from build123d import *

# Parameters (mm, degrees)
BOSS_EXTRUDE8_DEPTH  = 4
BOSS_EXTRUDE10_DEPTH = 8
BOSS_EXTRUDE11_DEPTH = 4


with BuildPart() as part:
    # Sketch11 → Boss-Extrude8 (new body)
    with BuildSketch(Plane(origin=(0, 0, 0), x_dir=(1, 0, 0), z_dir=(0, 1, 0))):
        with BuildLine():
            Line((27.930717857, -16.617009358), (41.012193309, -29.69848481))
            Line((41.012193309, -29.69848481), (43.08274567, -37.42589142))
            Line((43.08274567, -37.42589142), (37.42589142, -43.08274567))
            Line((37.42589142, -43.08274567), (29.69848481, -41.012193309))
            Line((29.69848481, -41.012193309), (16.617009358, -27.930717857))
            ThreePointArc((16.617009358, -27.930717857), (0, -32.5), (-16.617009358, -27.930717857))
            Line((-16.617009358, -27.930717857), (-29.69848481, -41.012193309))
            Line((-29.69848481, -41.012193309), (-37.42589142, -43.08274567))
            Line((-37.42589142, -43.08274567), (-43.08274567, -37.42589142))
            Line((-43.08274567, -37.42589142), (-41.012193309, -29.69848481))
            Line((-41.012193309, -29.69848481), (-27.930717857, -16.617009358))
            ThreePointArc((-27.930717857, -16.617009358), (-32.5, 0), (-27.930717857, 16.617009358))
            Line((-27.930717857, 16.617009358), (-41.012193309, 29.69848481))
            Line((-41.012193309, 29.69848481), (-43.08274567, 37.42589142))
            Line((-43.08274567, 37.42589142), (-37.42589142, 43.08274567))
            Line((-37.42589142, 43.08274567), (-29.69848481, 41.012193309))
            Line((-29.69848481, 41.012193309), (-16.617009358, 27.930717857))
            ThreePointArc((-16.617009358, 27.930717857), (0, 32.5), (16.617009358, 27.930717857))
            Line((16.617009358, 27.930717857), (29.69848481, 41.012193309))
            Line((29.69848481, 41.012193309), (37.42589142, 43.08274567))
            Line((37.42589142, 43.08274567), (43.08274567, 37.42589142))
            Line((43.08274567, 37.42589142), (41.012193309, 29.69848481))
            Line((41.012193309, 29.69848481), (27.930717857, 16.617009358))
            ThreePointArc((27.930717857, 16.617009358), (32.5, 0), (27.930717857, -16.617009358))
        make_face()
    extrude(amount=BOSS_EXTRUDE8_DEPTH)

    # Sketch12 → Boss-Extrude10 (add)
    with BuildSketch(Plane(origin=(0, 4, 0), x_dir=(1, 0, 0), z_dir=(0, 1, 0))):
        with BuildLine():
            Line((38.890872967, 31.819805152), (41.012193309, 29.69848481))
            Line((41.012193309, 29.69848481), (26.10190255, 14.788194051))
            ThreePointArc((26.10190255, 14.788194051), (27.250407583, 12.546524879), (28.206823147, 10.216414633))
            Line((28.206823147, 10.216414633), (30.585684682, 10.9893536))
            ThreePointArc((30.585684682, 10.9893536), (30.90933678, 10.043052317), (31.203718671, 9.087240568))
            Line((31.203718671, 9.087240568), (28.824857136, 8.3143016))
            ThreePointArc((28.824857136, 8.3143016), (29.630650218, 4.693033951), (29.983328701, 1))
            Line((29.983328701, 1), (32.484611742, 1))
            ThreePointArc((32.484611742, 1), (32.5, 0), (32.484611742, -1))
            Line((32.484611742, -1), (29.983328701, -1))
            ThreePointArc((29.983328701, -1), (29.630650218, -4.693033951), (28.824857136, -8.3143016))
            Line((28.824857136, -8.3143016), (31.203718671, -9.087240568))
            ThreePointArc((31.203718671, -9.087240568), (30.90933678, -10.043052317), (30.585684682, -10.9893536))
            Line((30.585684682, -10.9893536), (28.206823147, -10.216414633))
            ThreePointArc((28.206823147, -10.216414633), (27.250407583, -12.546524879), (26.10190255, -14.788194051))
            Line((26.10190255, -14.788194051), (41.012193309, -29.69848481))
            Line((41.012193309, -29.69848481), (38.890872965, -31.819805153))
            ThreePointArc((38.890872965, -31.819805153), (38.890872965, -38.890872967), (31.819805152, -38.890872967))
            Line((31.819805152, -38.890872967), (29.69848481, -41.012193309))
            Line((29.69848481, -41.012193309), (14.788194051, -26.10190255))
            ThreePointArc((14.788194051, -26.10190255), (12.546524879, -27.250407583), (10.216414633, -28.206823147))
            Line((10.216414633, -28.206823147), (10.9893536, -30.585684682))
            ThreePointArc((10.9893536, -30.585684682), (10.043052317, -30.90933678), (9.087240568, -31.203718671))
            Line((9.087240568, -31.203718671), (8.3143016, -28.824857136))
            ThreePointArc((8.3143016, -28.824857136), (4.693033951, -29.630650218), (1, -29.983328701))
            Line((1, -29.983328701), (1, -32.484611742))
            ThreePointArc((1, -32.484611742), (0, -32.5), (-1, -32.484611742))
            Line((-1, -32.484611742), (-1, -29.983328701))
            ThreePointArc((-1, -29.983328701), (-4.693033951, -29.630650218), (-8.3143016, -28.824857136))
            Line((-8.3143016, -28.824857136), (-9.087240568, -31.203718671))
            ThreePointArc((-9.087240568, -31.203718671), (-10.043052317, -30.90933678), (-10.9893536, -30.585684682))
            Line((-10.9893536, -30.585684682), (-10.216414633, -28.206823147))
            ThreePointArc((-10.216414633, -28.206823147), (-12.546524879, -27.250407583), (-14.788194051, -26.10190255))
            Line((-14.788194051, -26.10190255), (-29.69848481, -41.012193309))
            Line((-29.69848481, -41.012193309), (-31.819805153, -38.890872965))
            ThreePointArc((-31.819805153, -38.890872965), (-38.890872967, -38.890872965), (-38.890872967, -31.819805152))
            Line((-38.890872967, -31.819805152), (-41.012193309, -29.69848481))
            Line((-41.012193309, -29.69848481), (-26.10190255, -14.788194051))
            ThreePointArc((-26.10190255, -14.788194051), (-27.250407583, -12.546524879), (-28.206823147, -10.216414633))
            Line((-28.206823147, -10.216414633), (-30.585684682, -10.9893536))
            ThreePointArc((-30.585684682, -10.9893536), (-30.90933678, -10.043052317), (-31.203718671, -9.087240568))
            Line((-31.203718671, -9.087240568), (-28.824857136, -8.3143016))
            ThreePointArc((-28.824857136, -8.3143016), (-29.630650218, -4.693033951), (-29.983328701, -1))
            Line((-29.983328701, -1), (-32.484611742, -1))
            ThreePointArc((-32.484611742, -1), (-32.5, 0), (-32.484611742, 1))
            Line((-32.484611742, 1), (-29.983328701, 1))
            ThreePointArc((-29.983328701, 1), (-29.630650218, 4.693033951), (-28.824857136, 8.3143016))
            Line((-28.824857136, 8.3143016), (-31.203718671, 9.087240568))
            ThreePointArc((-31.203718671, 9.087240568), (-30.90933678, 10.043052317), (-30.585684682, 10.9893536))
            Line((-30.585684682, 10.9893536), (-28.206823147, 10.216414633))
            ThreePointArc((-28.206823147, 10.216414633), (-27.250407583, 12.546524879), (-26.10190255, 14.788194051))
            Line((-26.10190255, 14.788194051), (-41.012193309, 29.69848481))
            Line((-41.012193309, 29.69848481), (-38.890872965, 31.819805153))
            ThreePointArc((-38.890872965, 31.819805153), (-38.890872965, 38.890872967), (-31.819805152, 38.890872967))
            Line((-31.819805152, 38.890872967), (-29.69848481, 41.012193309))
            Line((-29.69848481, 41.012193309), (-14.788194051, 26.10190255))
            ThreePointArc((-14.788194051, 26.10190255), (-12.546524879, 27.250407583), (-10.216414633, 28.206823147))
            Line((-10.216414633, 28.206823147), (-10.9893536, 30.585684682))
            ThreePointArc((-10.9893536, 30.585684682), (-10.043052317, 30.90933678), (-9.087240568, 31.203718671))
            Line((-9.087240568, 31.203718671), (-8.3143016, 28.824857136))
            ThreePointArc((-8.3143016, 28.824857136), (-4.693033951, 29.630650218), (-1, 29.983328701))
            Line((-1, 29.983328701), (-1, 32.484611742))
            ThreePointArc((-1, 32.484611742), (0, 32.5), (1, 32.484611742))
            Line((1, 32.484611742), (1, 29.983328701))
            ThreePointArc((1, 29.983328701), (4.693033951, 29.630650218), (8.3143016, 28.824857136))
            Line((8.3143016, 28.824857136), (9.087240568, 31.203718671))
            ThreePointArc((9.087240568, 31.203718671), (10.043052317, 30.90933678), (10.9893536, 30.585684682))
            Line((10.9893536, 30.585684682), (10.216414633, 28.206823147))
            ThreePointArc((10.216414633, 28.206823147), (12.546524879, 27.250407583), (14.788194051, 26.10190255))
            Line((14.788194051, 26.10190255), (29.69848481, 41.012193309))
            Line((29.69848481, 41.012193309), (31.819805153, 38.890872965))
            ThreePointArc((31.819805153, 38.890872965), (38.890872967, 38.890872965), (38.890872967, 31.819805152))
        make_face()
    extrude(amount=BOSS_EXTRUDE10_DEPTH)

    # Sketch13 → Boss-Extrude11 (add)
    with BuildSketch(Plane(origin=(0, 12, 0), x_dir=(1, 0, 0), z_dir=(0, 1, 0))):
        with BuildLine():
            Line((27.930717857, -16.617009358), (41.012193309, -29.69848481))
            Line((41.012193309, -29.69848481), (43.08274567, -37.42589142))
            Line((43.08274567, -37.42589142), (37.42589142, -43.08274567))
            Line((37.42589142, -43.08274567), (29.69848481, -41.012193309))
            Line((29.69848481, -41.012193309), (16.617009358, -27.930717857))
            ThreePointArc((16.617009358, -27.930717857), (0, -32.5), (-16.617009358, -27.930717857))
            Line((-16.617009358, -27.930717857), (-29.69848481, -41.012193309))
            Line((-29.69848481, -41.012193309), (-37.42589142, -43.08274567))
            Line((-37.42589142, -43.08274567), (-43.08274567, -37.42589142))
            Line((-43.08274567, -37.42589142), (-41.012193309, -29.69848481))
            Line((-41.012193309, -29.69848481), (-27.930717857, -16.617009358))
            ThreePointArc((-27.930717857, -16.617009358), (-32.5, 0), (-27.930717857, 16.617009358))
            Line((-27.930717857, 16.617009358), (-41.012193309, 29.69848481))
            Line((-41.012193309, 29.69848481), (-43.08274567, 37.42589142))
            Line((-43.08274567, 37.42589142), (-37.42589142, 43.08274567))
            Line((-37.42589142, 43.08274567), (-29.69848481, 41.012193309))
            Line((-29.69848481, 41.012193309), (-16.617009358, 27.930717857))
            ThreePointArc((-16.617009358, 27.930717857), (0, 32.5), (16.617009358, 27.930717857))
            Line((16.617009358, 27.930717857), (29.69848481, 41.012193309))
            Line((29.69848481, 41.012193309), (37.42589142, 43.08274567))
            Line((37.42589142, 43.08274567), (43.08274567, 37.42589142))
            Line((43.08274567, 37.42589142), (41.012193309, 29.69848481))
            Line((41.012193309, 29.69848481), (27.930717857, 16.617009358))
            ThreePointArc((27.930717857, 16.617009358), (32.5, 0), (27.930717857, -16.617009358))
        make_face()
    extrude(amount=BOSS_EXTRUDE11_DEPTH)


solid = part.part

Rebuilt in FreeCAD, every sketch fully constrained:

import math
import FreeCAD as App
import Part
import Sketcher
Q = App.Units.Quantity

doc = App.newDocument("Part")
body = doc.addObject("PartDesign::Body", "Body")

# Sketch on XZ plane
sketch1 = doc.addObject("Sketcher::SketchObject", "Sketch")
body.addObject(sketch1)
sketch1.AttachmentSupport = (doc.XZ_Plane, [""])
sketch1.MapMode = "FlatFace"
sketch1.addGeometry(Part.LineSegment(App.Vector(41, 30, 0), App.Vector(28, 17, 0)), False)
sketch1.addGeometry(Part.ArcOfCircle(Part.Circle(App.Vector(0, 0, 0), App.Vector(0, 0, 1), 33), math.radians(-31), math.radians(31)), False)
sketch1.addGeometry(Part.LineSegment(App.Vector(28, -17, 0), App.Vector(41, -30, 0)), False)
sketch1.addGeometry(Part.LineSegment(App.Vector(41, -30, 0), App.Vector(43, -37, 0)), False)
sketch1.addGeometry(Part.LineSegment(App.Vector(43, -37, 0), App.Vector(37, -43, 0)), False)
sketch1.addGeometry(Part.LineSegment(App.Vector(37, -43, 0), App.Vector(30, -41, 0)), False)
sketch1.addGeometry(Part.LineSegment(App.Vector(30, -41, 0), App.Vector(17, -28, 0)), False)
sketch1.addGeometry(Part.ArcOfCircle(Part.Circle(App.Vector(0, 0, 0), App.Vector(0, 0, 1), 33), math.radians(-121), math.radians(-59)), False)
sketch1.addGeometry(Part.LineSegment(App.Vector(-17, -28, 0), App.Vector(-30, -41, 0)), False)
sketch1.addGeometry(Part.LineSegment(App.Vector(-30, -41, 0), App.Vector(-37, -43, 0)), False)
sketch1.addGeometry(Part.LineSegment(App.Vector(-37, -43, 0), App.Vector(-43, -37, 0)), False)
sketch1.addGeometry(Part.LineSegment(App.Vector(-43, -37, 0), App.Vector(-41, -30, 0)), False)
sketch1.addGeometry(Part.LineSegment(App.Vector(-41, -30, 0), App.Vector(-28, -17, 0)), False)
sketch1.addGeometry(Part.ArcOfCircle(Part.Circle(App.Vector(0, 0, 0), App.Vector(0, 0, 1), 33), math.radians(149), math.radians(211)), False)
sketch1.addGeometry(Part.LineSegment(App.Vector(-28, 17, 0), App.Vector(-41, 30, 0)), False)
sketch1.addGeometry(Part.LineSegment(App.Vector(-41, 30, 0), App.Vector(-43, 37, 0)), False)
sketch1.addGeometry(Part.LineSegment(App.Vector(-43, 37, 0), App.Vector(-37, 43, 0)), False)
sketch1.addGeometry(Part.LineSegment(App.Vector(-37, 43, 0), App.Vector(-30, 41, 0)), False)
sketch1.addGeometry(Part.LineSegment(App.Vector(-30, 41, 0), App.Vector(-17, 28, 0)), False)
sketch1.addGeometry(Part.ArcOfCircle(Part.Circle(App.Vector(0, 0, 0), App.Vector(0, 0, 1), 33), math.radians(59), math.radians(121)), False)
sketch1.addGeometry(Part.LineSegment(App.Vector(17, 28, 0), App.Vector(30, 41, 0)), False)
sketch1.addGeometry(Part.LineSegment(App.Vector(30, 41, 0), App.Vector(37, 43, 0)), False)
sketch1.addGeometry(Part.LineSegment(App.Vector(37, 43, 0), App.Vector(43, 37, 0)), False)
sketch1.addGeometry(Part.LineSegment(App.Vector(43, 37, 0), App.Vector(41, 30, 0)), False)
sketch1.addConstraint(Sketcher.Constraint("Coincident", 0, 2, 1, 2))
sketch1.addConstraint(Sketcher.Constraint("Coincident", 1, 1, 2, 1))
sketch1.addConstraint(Sketcher.Constraint("Coincident", 2, 2, 3, 1))
sketch1.addConstraint(Sketcher.Constraint("Coincident", 3, 2, 4, 1))
sketch1.addConstraint(Sketcher.Constraint("Coincident", 4, 2, 5, 1))
sketch1.addConstraint(Sketcher.Constraint("Coincident", 5, 2, 6, 1))
sketch1.addConstraint(Sketcher.Constraint("Coincident", 6, 2, 7, 2))
sketch1.addConstraint(Sketcher.Constraint("Coincident", 7, 1, 8, 1))
sketch1.addConstraint(Sketcher.Constraint("Coincident", 8, 2, 9, 1))
sketch1.addConstraint(Sketcher.Constraint("Coincident", 9, 2, 10, 1))
sketch1.addConstraint(Sketcher.Constraint("Coincident", 10, 2, 11, 1))
sketch1.addConstraint(Sketcher.Constraint("Coincident", 11, 2, 12, 1))
sketch1.addConstraint(Sketcher.Constraint("Coincident", 12, 2, 13, 2))
sketch1.addConstraint(Sketcher.Constraint("Coincident", 13, 1, 14, 1))
sketch1.addConstraint(Sketcher.Constraint("Coincident", 14, 2, 15, 1))
sketch1.addConstraint(Sketcher.Constraint("Coincident", 15, 2, 16, 1))
sketch1.addConstraint(Sketcher.Constraint("Coincident", 16, 2, 17, 1))
sketch1.addConstraint(Sketcher.Constraint("Coincident", 17, 2, 18, 1))
sketch1.addConstraint(Sketcher.Constraint("Coincident", 18, 2, 19, 2))
sketch1.addConstraint(Sketcher.Constraint("Coincident", 19, 1, 20, 1))
sketch1.addConstraint(Sketcher.Constraint("Coincident", 20, 2, 21, 1))
sketch1.addConstraint(Sketcher.Constraint("Coincident", 21, 2, 22, 1))
sketch1.addConstraint(Sketcher.Constraint("Coincident", 22, 2, 23, 1))
sketch1.addConstraint(Sketcher.Constraint("Coincident", 23, 2, 0, 1))
sketch1.addConstraint(Sketcher.Constraint("Coincident", 1, 3, -1, 1))
sketch1.addConstraint(Sketcher.Constraint("Coincident", 7, 3, -1, 1))
sketch1.addConstraint(Sketcher.Constraint("Coincident", 13, 3, -1, 1))
sketch1.addConstraint(Sketcher.Constraint("Coincident", 19, 3, -1, 1))
sketch1.addConstraint(Sketcher.Constraint("Equal", 1, 7))
sketch1.addConstraint(Sketcher.Constraint("Equal", 7, 13))
sketch1.addConstraint(Sketcher.Constraint("Equal", 13, 19))
sketch1.addConstraint(Sketcher.Constraint("Symmetric", 2, 2, 14, 2, -1, 1))
sketch1.addConstraint(Sketcher.Constraint("Symmetric", 3, 2, 15, 2, -1, 1))
sketch1.addConstraint(Sketcher.Constraint("Symmetric", 4, 2, 16, 2, -1, 1))
sketch1.addConstraint(Sketcher.Constraint("Symmetric", 5, 2, 17, 2, -1, 1))
sketch1.addConstraint(Sketcher.Constraint("Symmetric", 8, 2, 20, 2, -1, 1))
sketch1.addConstraint(Sketcher.Constraint("Symmetric", 9, 2, 21, 2, -1, 1))
sketch1.addConstraint(Sketcher.Constraint("Symmetric", 10, 2, 22, 2, -1, 1))
sketch1.addConstraint(Sketcher.Constraint("Symmetric", 11, 2, 23, 2, -1, 1))
sketch1.addConstraint(Sketcher.Constraint("Symmetric", 5, 2, 8, 2, -2))
sketch1.addConstraint(Sketcher.Constraint("Symmetric", 4, 2, 9, 2, -2))
sketch1.addConstraint(Sketcher.Constraint("Symmetric", 3, 2, 10, 2, -2))
sketch1.addConstraint(Sketcher.Constraint("Symmetric", 2, 2, 11, 2, -2))
sketch1.addConstraint(Sketcher.Constraint("Perpendicular", 0, 2))
sketch1.addConstraint(Sketcher.Constraint("Perpendicular", 2, 4))
sketch1.addConstraint(Sketcher.Constraint("Perpendicular", 4, 6))
sketch1.addConstraint(Sketcher.Constraint("Perpendicular", 6, 8))
sketch1.addConstraint(Sketcher.Constraint("Perpendicular", 3, 9))
sketch1.addConstraint(Sketcher.Constraint("Perpendicular", 8, 10))
sketch1.addConstraint(Sketcher.Constraint("Perpendicular", 10, 12))
sketch1.addConstraint(Sketcher.Constraint("Perpendicular", 12, 14))
sketch1.addConstraint(Sketcher.Constraint("Perpendicular", 16, 18))
sketch1.addConstraint(Sketcher.Constraint("Perpendicular", 18, 20))
sketch1.addConstraint(Sketcher.Constraint("Equal", 3, 4))
sketch1.addConstraint(Sketcher.Constraint("Equal", 4, 5))
sketch1.addConstraint(Sketcher.Constraint("Equal", 2, 6))
sketch1.addConstraint(Sketcher.Constraint("Radius", 1, 32.5))
sketch1.addConstraint(Sketcher.Constraint("Angle", 3, Q("-75 deg")))
sketch1.addConstraint(Sketcher.Constraint("Distance", 3, 8.0))
sketch1.addConstraint(Sketcher.Constraint("Distance", 0, 18.5))
pad1 = doc.addObject("PartDesign::Pad", "Pad")
body.addObject(pad1)
pad1.Profile = sketch1
pad1.Length = 4
pad1.Reversed = True

# Sketch on XZ plane
sketch2 = doc.addObject("Sketcher::SketchObject", "Sketch001")
body.addObject(sketch2)
sketch2.AttachmentSupport = (doc.XZ_Plane, [""])
sketch2.MapMode = "FlatFace"
sketch2.AttachmentOffset = App.Placement(App.Vector(0, 0, -4), App.Rotation())
sketch2.addGeometry(Part.LineSegment(App.Vector(41, -29.7, 0), App.Vector(38.9, -31.8, 0)), False)
sketch2.addGeometry(Part.ArcOfCircle(Part.Circle(App.Vector(35.4, -35.4, 0), App.Vector(0, 0, 1), 5), math.radians(-135), math.radians(45)), False)
sketch2.addGeometry(Part.LineSegment(App.Vector(31.8, -38.9, 0), App.Vector(29.7, -41, 0)), False)
sketch2.addGeometry(Part.LineSegment(App.Vector(29.7, -41, 0), App.Vector(14.8, -26.1, 0)), False)
sketch2.addGeometry(Part.ArcOfCircle(Part.Circle(App.Vector(0, 0, 0), App.Vector(0, 0, 1), 30), math.radians(-70.09), math.radians(-60.47)), False)
sketch2.addGeometry(Part.LineSegment(App.Vector(10.2, -28.2, 0), App.Vector(11, -30.6, 0)), False)
sketch2.addGeometry(Part.ArcOfCircle(Part.Circle(App.Vector(0, 0, 0), App.Vector(0, 0, 1), 32.5), math.radians(-73.76), math.radians(-70.24)), False)
sketch2.addGeometry(Part.LineSegment(App.Vector(9.1, -31.2, 0), App.Vector(8.3, -28.8, 0)), False)
sketch2.addGeometry(Part.ArcOfCircle(Part.Circle(App.Vector(0, 0, 0), App.Vector(0, 0, 1), 30), math.radians(-88.09), math.radians(-73.91)), False)
sketch2.addGeometry(Part.LineSegment(App.Vector(1, -30, 0), App.Vector(1, -32.5, 0)), False)
sketch2.addGeometry(Part.ArcOfCircle(Part.Circle(App.Vector(0, 0, 0), App.Vector(0, 0, 1), 32.5), math.radians(-91.76), math.radians(-88.24)), False)
sketch2.addGeometry(Part.LineSegment(App.Vector(-1, -32.5, 0), App.Vector(-1, -30, 0)), False)
sketch2.addGeometry(Part.ArcOfCircle(Part.Circle(App.Vector(0, 0, 0), App.Vector(0, 0, 1), 30), math.radians(-106.09), math.radians(-91.91)), False)
sketch2.addGeometry(Part.LineSegment(App.Vector(-8.3, -28.8, 0), App.Vector(-9.1, -31.2, 0)), False)
sketch2.addGeometry(Part.ArcOfCircle(Part.Circle(App.Vector(0, 0, 0), App.Vector(0, 0, 1), 32.5), math.radians(-109.76), math.radians(-106.24)), False)
sketch2.addGeometry(Part.LineSegment(App.Vector(-11, -30.6, 0), App.Vector(-10.2, -28.2, 0)), False)
sketch2.addGeometry(Part.ArcOfCircle(Part.Circle(App.Vector(0, 0, 0), App.Vector(0, 0, 1), 30), math.radians(-119.53), math.radians(-109.91)), False)
sketch2.addGeometry(Part.LineSegment(App.Vector(-14.8, -26.1, 0), App.Vector(-29.7, -41, 0)), False)
sketch2.addGeometry(Part.LineSegment(App.Vector(-29.7, -41, 0), App.Vector(-31.8, -38.9, 0)), False)
sketch2.addGeometry(Part.ArcOfCircle(Part.Circle(App.Vector(-35.4, -35.4, 0), App.Vector(0, 0, 1), 5), math.radians(135), math.radians(315)), False)
sketch2.addGeometry(Part.LineSegment(App.Vector(-38.9, -31.8, 0), App.Vector(-41, -29.7, 0)), False)
sketch2.addGeometry(Part.LineSegment(App.Vector(-41, -29.7, 0), App.Vector(-26.1, -14.8, 0)), False)
sketch2.addGeometry(Part.ArcOfCircle(Part.Circle(App.Vector(0, 0, 0), App.Vector(0, 0, 1), 30), math.radians(-160.09), math.radians(-150.47)), False)
sketch2.addGeometry(Part.LineSegment(App.Vector(-28.2, -10.2, 0), App.Vector(-30.6, -11, 0)), False)
sketch2.addGeometry(Part.ArcOfCircle(Part.Circle(App.Vector(0, 0, 0), App.Vector(0, 0, 1), 32.5), math.radians(-163.76), math.radians(-160.24)), False)
sketch2.addGeometry(Part.LineSegment(App.Vector(-31.2, -9.1, 0), App.Vector(-28.8, -8.3, 0)), False)
sketch2.addGeometry(Part.ArcOfCircle(Part.Circle(App.Vector(0, 0, 0), App.Vector(0, 0, 1), 30), math.radians(-178.09), math.radians(-163.91)), False)
sketch2.addGeometry(Part.LineSegment(App.Vector(-30, -1, 0), App.Vector(-32.5, -1, 0)), False)
sketch2.addGeometry(Part.ArcOfCircle(Part.Circle(App.Vector(0, 0, 0), App.Vector(0, 0, 1), 32.5), math.radians(178.24), math.radians(181.76)), False)
sketch2.addGeometry(Part.LineSegment(App.Vector(-32.5, 1, 0), App.Vector(-30, 1, 0)), False)
sketch2.addGeometry(Part.ArcOfCircle(Part.Circle(App.Vector(0, 0, 0), App.Vector(0, 0, 1), 30), math.radians(163.91), math.radians(178.09)), False)
sketch2.addGeometry(Part.LineSegment(App.Vector(-28.8, 8.3, 0), App.Vector(-31.2, 9.1, 0)), False)
sketch2.addGeometry(Part.ArcOfCircle(Part.Circle(App.Vector(0, 0, 0), App.Vector(0, 0, 1), 32.5), math.radians(160.24), math.radians(163.76)), False)
sketch2.addGeometry(Part.LineSegment(App.Vector(-30.6, 11, 0), App.Vector(-28.2, 10.2, 0)), False)
sketch2.addGeometry(Part.ArcOfCircle(Part.Circle(App.Vector(0, 0, 0), App.Vector(0, 0, 1), 30), math.radians(150.47), math.radians(160.09)), False)
sketch2.addGeometry(Part.LineSegment(App.Vector(-26.1, 14.8, 0), App.Vector(-41, 29.7, 0)), False)
sketch2.addGeometry(Part.LineSegment(App.Vector(-41, 29.7, 0), App.Vector(-38.9, 31.8, 0)), False)
sketch2.addGeometry(Part.ArcOfCircle(Part.Circle(App.Vector(-35.4, 35.4, 0), App.Vector(0, 0, 1), 5), math.radians(45), math.radians(225)), False)
sketch2.addGeometry(Part.LineSegment(App.Vector(-31.8, 38.9, 0), App.Vector(-29.7, 41, 0)), False)
sketch2.addGeometry(Part.LineSegment(App.Vector(-29.7, 41, 0), App.Vector(-14.8, 26.1, 0)), False)
sketch2.addGeometry(Part.ArcOfCircle(Part.Circle(App.Vector(0, 0, 0), App.Vector(0, 0, 1), 30), math.radians(109.91), math.radians(119.53)), False)
sketch2.addGeometry(Part.LineSegment(App.Vector(-10.2, 28.2, 0), App.Vector(-11, 30.6, 0)), False)
sketch2.addGeometry(Part.ArcOfCircle(Part.Circle(App.Vector(0, 0, 0), App.Vector(0, 0, 1), 32.5), math.radians(106.24), math.radians(109.76)), False)
sketch2.addGeometry(Part.LineSegment(App.Vector(-9.1, 31.2, 0), App.Vector(-8.3, 28.8, 0)), False)
sketch2.addGeometry(Part.ArcOfCircle(Part.Circle(App.Vector(0, 0, 0), App.Vector(0, 0, 1), 30), math.radians(91.91), math.radians(106.09)), False)
sketch2.addGeometry(Part.LineSegment(App.Vector(-1, 30, 0), App.Vector(-1, 32.5, 0)), False)
sketch2.addGeometry(Part.ArcOfCircle(Part.Circle(App.Vector(0, 0, 0), App.Vector(0, 0, 1), 32.5), math.radians(88.24), math.radians(91.76)), False)
sketch2.addGeometry(Part.LineSegment(App.Vector(1, 32.5, 0), App.Vector(1, 30, 0)), False)
sketch2.addGeometry(Part.ArcOfCircle(Part.Circle(App.Vector(0, 0, 0), App.Vector(0, 0, 1), 30), math.radians(73.91), math.radians(88.09)), False)
sketch2.addGeometry(Part.LineSegment(App.Vector(8.3, 28.8, 0), App.Vector(9.1, 31.2, 0)), False)
sketch2.addGeometry(Part.ArcOfCircle(Part.Circle(App.Vector(0, 0, 0), App.Vector(0, 0, 1), 32.5), math.radians(70.24), math.radians(73.76)), False)
sketch2.addGeometry(Part.LineSegment(App.Vector(11, 30.6, 0), App.Vector(10.2, 28.2, 0)), False)
sketch2.addGeometry(Part.ArcOfCircle(Part.Circle(App.Vector(0, 0, 0), App.Vector(0, 0, 1), 30), math.radians(60.47), math.radians(70.09)), False)
sketch2.addGeometry(Part.LineSegment(App.Vector(14.8, 26.1, 0), App.Vector(29.7, 41, 0)), False)
sketch2.addGeometry(Part.LineSegment(App.Vector(29.7, 41, 0), App.Vector(31.8, 38.9, 0)), False)
sketch2.addGeometry(Part.ArcOfCircle(Part.Circle(App.Vector(35.4, 35.4, 0), App.Vector(0, 0, 1), 5), math.radians(-45), math.radians(135)), False)
sketch2.addGeometry(Part.LineSegment(App.Vector(38.9, 31.8, 0), App.Vector(41, 29.7, 0)), False)
sketch2.addGeometry(Part.LineSegment(App.Vector(41, 29.7, 0), App.Vector(26.1, 14.8, 0)), False)
sketch2.addGeometry(Part.ArcOfCircle(Part.Circle(App.Vector(0, 0, 0), App.Vector(0, 0, 1), 30), math.radians(19.91), math.radians(29.53)), False)
sketch2.addGeometry(Part.LineSegment(App.Vector(28.2, 10.2, 0), App.Vector(30.6, 11, 0)), False)
sketch2.addGeometry(Part.ArcOfCircle(Part.Circle(App.Vector(0, 0, 0), App.Vector(0, 0, 1), 32.5), math.radians(16.24), math.radians(19.76)), False)
sketch2.addGeometry(Part.LineSegment(App.Vector(31.2, 9.1, 0), App.Vector(28.8, 8.3, 0)), False)
sketch2.addGeometry(Part.ArcOfCircle(Part.Circle(App.Vector(0, 0, 0), App.Vector(0, 0, 1), 30), math.radians(1.91), math.radians(16.09)), False)
sketch2.addGeometry(Part.LineSegment(App.Vector(30, 1, 0), App.Vector(32.5, 1, 0)), False)
sketch2.addGeometry(Part.ArcOfCircle(Part.Circle(App.Vector(0, 0, 0), App.Vector(0, 0, 1), 32.5), math.radians(-1.76), math.radians(1.76)), False)
sketch2.addGeometry(Part.LineSegment(App.Vector(32.5, -1, 0), App.Vector(30, -1, 0)), False)
sketch2.addGeometry(Part.ArcOfCircle(Part.Circle(App.Vector(0, 0, 0), App.Vector(0, 0, 1), 30), math.radians(-16.09), math.radians(-1.91)), False)
sketch2.addGeometry(Part.LineSegment(App.Vector(28.8, -8.3, 0), App.Vector(31.2, -9.1, 0)), False)
sketch2.addGeometry(Part.ArcOfCircle(Part.Circle(App.Vector(0, 0, 0), App.Vector(0, 0, 1), 32.5), math.radians(-19.76), math.radians(-16.24)), False)
sketch2.addGeometry(Part.LineSegment(App.Vector(30.6, -11, 0), App.Vector(28.2, -10.2, 0)), False)
sketch2.addGeometry(Part.ArcOfCircle(Part.Circle(App.Vector(0, 0, 0), App.Vector(0, 0, 1), 30), math.radians(-29.53), math.radians(-19.91)), False)
sketch2.addGeometry(Part.LineSegment(App.Vector(26.1, -14.8, 0), App.Vector(41, -29.7, 0)), False)
sketch2.addConstraint(Sketcher.Constraint("Coincident", 0, 2, 1, 2))
sketch2.addConstraint(Sketcher.Constraint("Coincident", 1, 1, 2, 1))
sketch2.addConstraint(Sketcher.Constraint("Coincident", 2, 2, 3, 1))
sketch2.addConstraint(Sketcher.Constraint("Coincident", 3, 2, 4, 2))
sketch2.addConstraint(Sketcher.Constraint("Coincident", 4, 1, 5, 1))
sketch2.addConstraint(Sketcher.Constraint("Coincident", 5, 2, 6, 2))
sketch2.addConstraint(Sketcher.Constraint("Coincident", 6, 1, 7, 1))
sketch2.addConstraint(Sketcher.Constraint("Coincident", 7, 2, 8, 2))
sketch2.addConstraint(Sketcher.Constraint("Coincident", 8, 1, 9, 1))
sketch2.addConstraint(Sketcher.Constraint("Coincident", 9, 2, 10, 2))
sketch2.addConstraint(Sketcher.Constraint("Coincident", 10, 1, 11, 1))
sketch2.addConstraint(Sketcher.Constraint("Coincident", 11, 2, 12, 2))
sketch2.addConstraint(Sketcher.Constraint("Coincident", 12, 1, 13, 1))
sketch2.addConstraint(Sketcher.Constraint("Coincident", 13, 2, 14, 2))
sketch2.addConstraint(Sketcher.Constraint("Coincident", 14, 1, 15, 1))
sketch2.addConstraint(Sketcher.Constraint("Coincident", 15, 2, 16, 2))
sketch2.addConstraint(Sketcher.Constraint("Coincident", 16, 1, 17, 1))
sketch2.addConstraint(Sketcher.Constraint("Coincident", 17, 2, 18, 1))
sketch2.addConstraint(Sketcher.Constraint("Coincident", 18, 2, 19, 2))
sketch2.addConstraint(Sketcher.Constraint("Coincident", 19, 1, 20, 1))
sketch2.addConstraint(Sketcher.Constraint("Coincident", 20, 2, 21, 1))
sketch2.addConstraint(Sketcher.Constraint("Coincident", 21, 2, 22, 2))
sketch2.addConstraint(Sketcher.Constraint("Coincident", 22, 1, 23, 1))
sketch2.addConstraint(Sketcher.Constraint("Coincident", 23, 2, 24, 2))
sketch2.addConstraint(Sketcher.Constraint("Coincident", 24, 1, 25, 1))
sketch2.addConstraint(Sketcher.Constraint("Coincident", 25, 2, 26, 2))
sketch2.addConstraint(Sketcher.Constraint("Coincident", 26, 1, 27, 1))
sketch2.addConstraint(Sketcher.Constraint("Coincident", 27, 2, 28, 2))
sketch2.addConstraint(Sketcher.Constraint("Coincident", 28, 1, 29, 1))
sketch2.addConstraint(Sketcher.Constraint("Coincident", 29, 2, 30, 2))
sketch2.addConstraint(Sketcher.Constraint("Coincident", 30, 1, 31, 1))
sketch2.addConstraint(Sketcher.Constraint("Coincident", 31, 2, 32, 2))
sketch2.addConstraint(Sketcher.Constraint("Coincident", 32, 1, 33, 1))
sketch2.addConstraint(Sketcher.Constraint("Coincident", 33, 2, 34, 2))
sketch2.addConstraint(Sketcher.Constraint("Coincident", 34, 1, 35, 1))
sketch2.addConstraint(Sketcher.Constraint("Coincident", 35, 2, 36, 1))
sketch2.addConstraint(Sketcher.Constraint("Coincident", 36, 2, 37, 2))
sketch2.addConstraint(Sketcher.Constraint("Coincident", 37, 1, 38, 1))
sketch2.addConstraint(Sketcher.Constraint("Coincident", 38, 2, 39, 1))
sketch2.addConstraint(Sketcher.Constraint("Coincident", 39, 2, 40, 2))
sketch2.addConstraint(Sketcher.Constraint("Coincident", 40, 1, 41, 1))
sketch2.addConstraint(Sketcher.Constraint("Coincident", 41, 2, 42, 2))
sketch2.addConstraint(Sketcher.Constraint("Coincident", 42, 1, 43, 1))
sketch2.addConstraint(Sketcher.Constraint("Coincident", 43, 2, 44, 2))
sketch2.addConstraint(Sketcher.Constraint("Coincident", 44, 1, 45, 1))
sketch2.addConstraint(Sketcher.Constraint("Coincident", 45, 2, 46, 2))
sketch2.addConstraint(Sketcher.Constraint("Coincident", 46, 1, 47, 1))
sketch2.addConstraint(Sketcher.Constraint("Coincident", 47, 2, 48, 2))
sketch2.addConstraint(Sketcher.Constraint("Coincident", 48, 1, 49, 1))
sketch2.addConstraint(Sketcher.Constraint("Coincident", 49, 2, 50, 2))
sketch2.addConstraint(Sketcher.Constraint("Coincident", 50, 1, 51, 1))
sketch2.addConstraint(Sketcher.Constraint("Coincident", 51, 2, 52, 2))
sketch2.addConstraint(Sketcher.Constraint("Coincident", 52, 1, 53, 1))
sketch2.addConstraint(Sketcher.Constraint("Coincident", 53, 2, 54, 1))
sketch2.addConstraint(Sketcher.Constraint("Coincident", 54, 2, 55, 2))
sketch2.addConstraint(Sketcher.Constraint("Coincident", 55, 1, 56, 1))
sketch2.addConstraint(Sketcher.Constraint("Coincident", 56, 2, 57, 1))
sketch2.addConstraint(Sketcher.Constraint("Coincident", 57, 2, 58, 2))
sketch2.addConstraint(Sketcher.Constraint("Coincident", 58, 1, 59, 1))
sketch2.addConstraint(Sketcher.Constraint("Coincident", 59, 2, 60, 2))
sketch2.addConstraint(Sketcher.Constraint("Coincident", 60, 1, 61, 1))
sketch2.addConstraint(Sketcher.Constraint("Coincident", 61, 2, 62, 2))
sketch2.addConstraint(Sketcher.Constraint("Coincident", 62, 1, 63, 1))
sketch2.addConstraint(Sketcher.Constraint("Coincident", 63, 2, 64, 2))
sketch2.addConstraint(Sketcher.Constraint("Coincident", 64, 1, 65, 1))
sketch2.addConstraint(Sketcher.Constraint("Coincident", 65, 2, 66, 2))
sketch2.addConstraint(Sketcher.Constraint("Coincident", 66, 1, 67, 1))
sketch2.addConstraint(Sketcher.Constraint("Coincident", 67, 2, 68, 2))
sketch2.addConstraint(Sketcher.Constraint("Coincident", 68, 1, 69, 1))
sketch2.addConstraint(Sketcher.Constraint("Coincident", 69, 2, 70, 2))
sketch2.addConstraint(Sketcher.Constraint("Coincident", 70, 1, 71, 1))
sketch2.addConstraint(Sketcher.Constraint("Coincident", 71, 2, 0, 1))
sketch2.addConstraint(Sketcher.Constraint("Vertical", 9))
sketch2.addConstraint(Sketcher.Constraint("Vertical", 11))
sketch2.addConstraint(Sketcher.Constraint("Horizontal", 27))
sketch2.addConstraint(Sketcher.Constraint("Horizontal", 29))
sketch2.addConstraint(Sketcher.Constraint("Vertical", 45))
sketch2.addConstraint(Sketcher.Constraint("Vertical", 47))
sketch2.addConstraint(Sketcher.Constraint("Horizontal", 63))
sketch2.addConstraint(Sketcher.Constraint("Horizontal", 65))
sketch2.addConstraint(Sketcher.Constraint("Coincident", 4, 3, -1, 1))
sketch2.addConstraint(Sketcher.Constraint("Coincident", 6, 3, -1, 1))
sketch2.addConstraint(Sketcher.Constraint("Coincident", 8, 3, -1, 1))
sketch2.addConstraint(Sketcher.Constraint("Coincident", 10, 3, -1, 1))
sketch2.addConstraint(Sketcher.Constraint("Coincident", 12, 3, -1, 1))
sketch2.addConstraint(Sketcher.Constraint("Coincident", 14, 3, -1, 1))
sketch2.addConstraint(Sketcher.Constraint("Coincident", 16, 3, -1, 1))
sketch2.addConstraint(Sketcher.Constraint("Coincident", 22, 3, -1, 1))
sketch2.addConstraint(Sketcher.Constraint("Coincident", 24, 3, -1, 1))
sketch2.addConstraint(Sketcher.Constraint("Coincident", 26, 3, -1, 1))
sketch2.addConstraint(Sketcher.Constraint("Coincident", 28, 3, -1, 1))
sketch2.addConstraint(Sketcher.Constraint("Coincident", 30, 3, -1, 1))
sketch2.addConstraint(Sketcher.Constraint("Coincident", 32, 3, -1, 1))
sketch2.addConstraint(Sketcher.Constraint("Coincident", 34, 3, -1, 1))
sketch2.addConstraint(Sketcher.Constraint("Coincident", 40, 3, -1, 1))
sketch2.addConstraint(Sketcher.Constraint("Coincident", 42, 3, -1, 1))
sketch2.addConstraint(Sketcher.Constraint("Coincident", 44, 3, -1, 1))
sketch2.addConstraint(Sketcher.Constraint("Coincident", 46, 3, -1, 1))
sketch2.addConstraint(Sketcher.Constraint("Coincident", 48, 3, -1, 1))
sketch2.addConstraint(Sketcher.Constraint("Coincident", 50, 3, -1, 1))
sketch2.addConstraint(Sketcher.Constraint("Coincident", 52, 3, -1, 1))
sketch2.addConstraint(Sketcher.Constraint("Coincident", 58, 3, -1, 1))
sketch2.addConstraint(Sketcher.Constraint("Coincident", 60, 3, -1, 1))
sketch2.addConstraint(Sketcher.Constraint("Coincident", 62, 3, -1, 1))
sketch2.addConstraint(Sketcher.Constraint("Coincident", 64, 3, -1, 1))
sketch2.addConstraint(Sketcher.Constraint("Coincident", 66, 3, -1, 1))
sketch2.addConstraint(Sketcher.Constraint("Coincident", 68, 3, -1, 1))
sketch2.addConstraint(Sketcher.Constraint("Coincident", 70, 3, -1, 1))
sketch2.addConstraint(Sketcher.Constraint("Equal", 4, 8))
sketch2.addConstraint(Sketcher.Constraint("Equal", 6, 10))
sketch2.addConstraint(Sketcher.Constraint("Equal", 8, 12))
sketch2.addConstraint(Sketcher.Constraint("Equal", 10, 14))
sketch2.addConstraint(Sketcher.Constraint("Equal", 12, 16))
sketch2.addConstraint(Sketcher.Constraint("Equal", 1, 19))
sketch2.addConstraint(Sketcher.Constraint("Equal", 16, 22))
sketch2.addConstraint(Sketcher.Constraint("Equal", 14, 24))
sketch2.addConstraint(Sketcher.Constraint("Equal", 22, 26))
sketch2.addConstraint(Sketcher.Constraint("Equal", 24, 28))
sketch2.addConstraint(Sketcher.Constraint("Equal", 26, 30))
sketch2.addConstraint(Sketcher.Constraint("Equal", 28, 32))
sketch2.addConstraint(Sketcher.Constraint("Equal", 30, 34))
sketch2.addConstraint(Sketcher.Constraint("Equal", 19, 37))
sketch2.addConstraint(Sketcher.Constraint("Equal", 34, 40))
sketch2.addConstraint(Sketcher.Constraint("Equal", 32, 42))
sketch2.addConstraint(Sketcher.Constraint("Equal", 40, 44))
sketch2.addConstraint(Sketcher.Constraint("Equal", 42, 46))
sketch2.addConstraint(Sketcher.Constraint("Equal", 44, 48))
sketch2.addConstraint(Sketcher.Constraint("Equal", 46, 50))
sketch2.addConstraint(Sketcher.Constraint("Equal", 48, 52))
sketch2.addConstraint(Sketcher.Constraint("Equal", 37, 55))
sketch2.addConstraint(Sketcher.Constraint("Equal", 52, 58))
sketch2.addConstraint(Sketcher.Constraint("Equal", 50, 60))
sketch2.addConstraint(Sketcher.Constraint("Equal", 58, 62))
sketch2.addConstraint(Sketcher.Constraint("Equal", 60, 64))
sketch2.addConstraint(Sketcher.Constraint("Equal", 62, 66))
sketch2.addConstraint(Sketcher.Constraint("Equal", 64, 68))
sketch2.addConstraint(Sketcher.Constraint("Equal", 66, 70))
sketch2.addConstraint(Sketcher.Constraint("Symmetric", 1, 3, 37, 3, -1, 1))
sketch2.addConstraint(Sketcher.Constraint("Symmetric", 19, 3, 55, 3, -1, 1))
sketch2.addConstraint(Sketcher.Constraint("Symmetric", 2, 2, 38, 2, -1, 1))
sketch2.addConstraint(Sketcher.Constraint("Symmetric", 17, 2, 53, 2, -1, 1))
sketch2.addConstraint(Sketcher.Constraint("Symmetric", 20, 2, 56, 2, -1, 1))
sketch2.addConstraint(Sketcher.Constraint("Symmetric", 35, 2, 71, 2, -1, 1))
sketch2.addConstraint(Sketcher.Constraint("Symmetric", 1, 3, 19, 3, -2))
sketch2.addConstraint(Sketcher.Constraint("Symmetric", 2, 2, 17, 2, -2))
sketch2.addConstraint(Sketcher.Constraint("Symmetric", 35, 2, 56, 2, -2))
sketch2.addConstraint(Sketcher.Constraint("Parallel", 0, 2))
sketch2.addConstraint(Sketcher.Constraint("Perpendicular", 2, 3))
sketch2.addConstraint(Sketcher.Constraint("Parallel", 5, 7))
sketch2.addConstraint(Sketcher.Constraint("Parallel", 13, 15))
sketch2.addConstraint(Sketcher.Constraint("Perpendicular", 3, 17))
sketch2.addConstraint(Sketcher.Constraint("Perpendicular", 17, 18))
sketch2.addConstraint(Sketcher.Constraint("Parallel", 18, 20))
sketch2.addConstraint(Sketcher.Constraint("Perpendicular", 20, 21))
sketch2.addConstraint(Sketcher.Constraint("Perpendicular", 7, 23))
sketch2.addConstraint(Sketcher.Constraint("Parallel", 23, 25))
sketch2.addConstraint(Sketcher.Constraint("Perpendicular", 15, 31))
sketch2.addConstraint(Sketcher.Constraint("Parallel", 31, 33))
sketch2.addConstraint(Sketcher.Constraint("Perpendicular", 21, 35))
sketch2.addConstraint(Sketcher.Constraint("Perpendicular", 35, 36))
sketch2.addConstraint(Sketcher.Constraint("Parallel", 36, 38))
sketch2.addConstraint(Sketcher.Constraint("Perpendicular", 38, 39))
sketch2.addConstraint(Sketcher.Constraint("Perpendicular", 25, 41))
sketch2.addConstraint(Sketcher.Constraint("Parallel", 41, 43))
sketch2.addConstraint(Sketcher.Constraint("Perpendicular", 33, 49))
sketch2.addConstraint(Sketcher.Constraint("Parallel", 49, 51))
sketch2.addConstraint(Sketcher.Constraint("Perpendicular", 39, 53))
sketch2.addConstraint(Sketcher.Constraint("Perpendicular", 53, 54))
sketch2.addConstraint(Sketcher.Constraint("Parallel", 54, 56))
sketch2.addConstraint(Sketcher.Constraint("Perpendicular", 56, 57))
sketch2.addConstraint(Sketcher.Constraint("Perpendicular", 43, 59))
sketch2.addConstraint(Sketcher.Constraint("Parallel", 59, 61))
sketch2.addConstraint(Sketcher.Constraint("Perpendicular", 51, 67))
sketch2.addConstraint(Sketcher.Constraint("Parallel", 67, 69))
sketch2.addConstraint(Sketcher.Constraint("Perpendicular", 57, 71))
sketch2.addConstraint(Sketcher.Constraint("Horizontal", 9, 2, 10, 1))
sketch2.addConstraint(Sketcher.Constraint("Horizontal", 7, 2, 12, 1))
sketch2.addConstraint(Sketcher.Constraint("Horizontal", 6, 1, 13, 2))
sketch2.addConstraint(Sketcher.Constraint("Horizontal", 5, 2, 14, 1))
sketch2.addConstraint(Sketcher.Constraint("Horizontal", 3, 2, 16, 1))
sketch2.addConstraint(Sketcher.Constraint("Horizontal", 45, 2, 46, 1))
sketch2.addConstraint(Sketcher.Constraint("Horizontal", 43, 2, 48, 1))
sketch2.addConstraint(Sketcher.Constraint("Horizontal", 41, 2, 50, 1))
sketch2.addConstraint(Sketcher.Constraint("Horizontal", 33, 2, 58, 1))
sketch2.addConstraint(Sketcher.Constraint("Horizontal", 31, 2, 60, 1))
sketch2.addConstraint(Sketcher.Constraint("Horizontal", 29, 2, 62, 1))
sketch2.addConstraint(Sketcher.Constraint("Horizontal", 27, 2, 64, 1))
sketch2.addConstraint(Sketcher.Constraint("Horizontal", 25, 2, 66, 1))
sketch2.addConstraint(Sketcher.Constraint("Horizontal", 23, 2, 68, 1))
sketch2.addConstraint(Sketcher.Constraint("Vertical", 27, 2, 28, 1))
sketch2.addConstraint(Sketcher.Constraint("Vertical", 25, 2, 30, 1))
sketch2.addConstraint(Sketcher.Constraint("Vertical", 23, 2, 32, 1))
sketch2.addConstraint(Sketcher.Constraint("Vertical", 15, 2, 40, 1))
sketch2.addConstraint(Sketcher.Constraint("Vertical", 13, 2, 42, 1))
sketch2.addConstraint(Sketcher.Constraint("Vertical", 11, 2, 44, 1))
sketch2.addConstraint(Sketcher.Constraint("Equal", 0, 2))
sketch2.addConstraint(Sketcher.Constraint("Equal", 5, 7))
sketch2.addConstraint(Sketcher.Constraint("Equal", 17, 21))
sketch2.addConstraint(Sketcher.Constraint("Radius", 1, 5.0))
sketch2.addConstraint(Sketcher.Constraint("Radius", 4, 30.0))
sketch2.addConstraint(Sketcher.Constraint("Radius", 6, 32.5))
sketch2.addConstraint(Sketcher.Constraint("Angle", 5, Q("-72 deg")))
sketch2.addConstraint(Sketcher.Constraint("Distance", 0, 3.0))
sketch2.addConstraint(Sketcher.Constraint("DistanceX", -1, 1, 8, 1, 1.0))
sketch2.addConstraint(Sketcher.Constraint("DistanceY", 26, 1, -1, 1, 1.0))
sketch2.addConstraint(Sketcher.Constraint("DistanceX", -1, 1, 7, 2, 8.314302))
sketch2.addConstraint(Sketcher.Constraint("DistanceY", 25, 2, -1, 1, 8.314302))
sketch2.addConstraint(Sketcher.Constraint("DistanceX", -1, 1, 1, 3, 35.355339))
sketch2.addConstraint(Sketcher.Constraint("DistanceY", 1, 3, -1, 1, 35.355339))
sketch2.addConstraint(Sketcher.Constraint("Distance", 3, 21.086335))
sketch2.addConstraint(Sketcher.Constraint("DistanceX", 22, 1, -1, 1, 28.206823))
pad2 = doc.addObject("PartDesign::Pad", "Pad001")
body.addObject(pad2)
pad2.Profile = sketch2
pad2.Length = 8
pad2.Reversed = True

# Sketch on XZ plane
sketch3 = doc.addObject("Sketcher::SketchObject", "Sketch002")
body.addObject(sketch3)
sketch3.AttachmentSupport = (doc.XZ_Plane, [""])
sketch3.MapMode = "FlatFace"
sketch3.AttachmentOffset = App.Placement(App.Vector(0, 0, -12), App.Rotation())
sketch3.addGeometry(Part.LineSegment(App.Vector(41, 30, 0), App.Vector(28, 17, 0)), False)
sketch3.addGeometry(Part.ArcOfCircle(Part.Circle(App.Vector(0, 0, 0), App.Vector(0, 0, 1), 33), math.radians(-31), math.radians(31)), False)
sketch3.addGeometry(Part.LineSegment(App.Vector(28, -17, 0), App.Vector(41, -30, 0)), False)
sketch3.addGeometry(Part.LineSegment(App.Vector(41, -30, 0), App.Vector(43, -37, 0)), False)
sketch3.addGeometry(Part.LineSegment(App.Vector(43, -37, 0), App.Vector(37, -43, 0)), False)
sketch3.addGeometry(Part.LineSegment(App.Vector(37, -43, 0), App.Vector(30, -41, 0)), False)
sketch3.addGeometry(Part.LineSegment(App.Vector(30, -41, 0), App.Vector(17, -28, 0)), False)
sketch3.addGeometry(Part.ArcOfCircle(Part.Circle(App.Vector(0, 0, 0), App.Vector(0, 0, 1), 33), math.radians(-121), math.radians(-59)), False)
sketch3.addGeometry(Part.LineSegment(App.Vector(-17, -28, 0), App.Vector(-30, -41, 0)), False)
sketch3.addGeometry(Part.LineSegment(App.Vector(-30, -41, 0), App.Vector(-37, -43, 0)), False)
sketch3.addGeometry(Part.LineSegment(App.Vector(-37, -43, 0), App.Vector(-43, -37, 0)), False)
sketch3.addGeometry(Part.LineSegment(App.Vector(-43, -37, 0), App.Vector(-41, -30, 0)), False)
sketch3.addGeometry(Part.LineSegment(App.Vector(-41, -30, 0), App.Vector(-28, -17, 0)), False)
sketch3.addGeometry(Part.ArcOfCircle(Part.Circle(App.Vector(0, 0, 0), App.Vector(0, 0, 1), 33), math.radians(149), math.radians(211)), False)
sketch3.addGeometry(Part.LineSegment(App.Vector(-28, 17, 0), App.Vector(-41, 30, 0)), False)
sketch3.addGeometry(Part.LineSegment(App.Vector(-41, 30, 0), App.Vector(-43, 37, 0)), False)
sketch3.addGeometry(Part.LineSegment(App.Vector(-43, 37, 0), App.Vector(-37, 43, 0)), False)
sketch3.addGeometry(Part.LineSegment(App.Vector(-37, 43, 0), App.Vector(-30, 41, 0)), False)
sketch3.addGeometry(Part.LineSegment(App.Vector(-30, 41, 0), App.Vector(-17, 28, 0)), False)
sketch3.addGeometry(Part.ArcOfCircle(Part.Circle(App.Vector(0, 0, 0), App.Vector(0, 0, 1), 33), math.radians(59), math.radians(121)), False)
sketch3.addGeometry(Part.LineSegment(App.Vector(17, 28, 0), App.Vector(30, 41, 0)), False)
sketch3.addGeometry(Part.LineSegment(App.Vector(30, 41, 0), App.Vector(37, 43, 0)), False)
sketch3.addGeometry(Part.LineSegment(App.Vector(37, 43, 0), App.Vector(43, 37, 0)), False)
sketch3.addGeometry(Part.LineSegment(App.Vector(43, 37, 0), App.Vector(41, 30, 0)), False)
sketch3.addConstraint(Sketcher.Constraint("Coincident", 0, 2, 1, 2))
sketch3.addConstraint(Sketcher.Constraint("Coincident", 1, 1, 2, 1))
sketch3.addConstraint(Sketcher.Constraint("Coincident", 2, 2, 3, 1))
sketch3.addConstraint(Sketcher.Constraint("Coincident", 3, 2, 4, 1))
sketch3.addConstraint(Sketcher.Constraint("Coincident", 4, 2, 5, 1))
sketch3.addConstraint(Sketcher.Constraint("Coincident", 5, 2, 6, 1))
sketch3.addConstraint(Sketcher.Constraint("Coincident", 6, 2, 7, 2))
sketch3.addConstraint(Sketcher.Constraint("Coincident", 7, 1, 8, 1))
sketch3.addConstraint(Sketcher.Constraint("Coincident", 8, 2, 9, 1))
sketch3.addConstraint(Sketcher.Constraint("Coincident", 9, 2, 10, 1))
sketch3.addConstraint(Sketcher.Constraint("Coincident", 10, 2, 11, 1))
sketch3.addConstraint(Sketcher.Constraint("Coincident", 11, 2, 12, 1))
sketch3.addConstraint(Sketcher.Constraint("Coincident", 12, 2, 13, 2))
sketch3.addConstraint(Sketcher.Constraint("Coincident", 13, 1, 14, 1))
sketch3.addConstraint(Sketcher.Constraint("Coincident", 14, 2, 15, 1))
sketch3.addConstraint(Sketcher.Constraint("Coincident", 15, 2, 16, 1))
sketch3.addConstraint(Sketcher.Constraint("Coincident", 16, 2, 17, 1))
sketch3.addConstraint(Sketcher.Constraint("Coincident", 17, 2, 18, 1))
sketch3.addConstraint(Sketcher.Constraint("Coincident", 18, 2, 19, 2))
sketch3.addConstraint(Sketcher.Constraint("Coincident", 19, 1, 20, 1))
sketch3.addConstraint(Sketcher.Constraint("Coincident", 20, 2, 21, 1))
sketch3.addConstraint(Sketcher.Constraint("Coincident", 21, 2, 22, 1))
sketch3.addConstraint(Sketcher.Constraint("Coincident", 22, 2, 23, 1))
sketch3.addConstraint(Sketcher.Constraint("Coincident", 23, 2, 0, 1))
sketch3.addConstraint(Sketcher.Constraint("Coincident", 1, 3, -1, 1))
sketch3.addConstraint(Sketcher.Constraint("Coincident", 7, 3, -1, 1))
sketch3.addConstraint(Sketcher.Constraint("Coincident", 13, 3, -1, 1))
sketch3.addConstraint(Sketcher.Constraint("Coincident", 19, 3, -1, 1))
sketch3.addConstraint(Sketcher.Constraint("Equal", 1, 7))
sketch3.addConstraint(Sketcher.Constraint("Equal", 7, 13))
sketch3.addConstraint(Sketcher.Constraint("Equal", 13, 19))
sketch3.addConstraint(Sketcher.Constraint("Symmetric", 2, 2, 14, 2, -1, 1))
sketch3.addConstraint(Sketcher.Constraint("Symmetric", 3, 2, 15, 2, -1, 1))
sketch3.addConstraint(Sketcher.Constraint("Symmetric", 4, 2, 16, 2, -1, 1))
sketch3.addConstraint(Sketcher.Constraint("Symmetric", 5, 2, 17, 2, -1, 1))
sketch3.addConstraint(Sketcher.Constraint("Symmetric", 8, 2, 20, 2, -1, 1))
sketch3.addConstraint(Sketcher.Constraint("Symmetric", 9, 2, 21, 2, -1, 1))
sketch3.addConstraint(Sketcher.Constraint("Symmetric", 10, 2, 22, 2, -1, 1))
sketch3.addConstraint(Sketcher.Constraint("Symmetric", 11, 2, 23, 2, -1, 1))
sketch3.addConstraint(Sketcher.Constraint("Symmetric", 5, 2, 8, 2, -2))
sketch3.addConstraint(Sketcher.Constraint("Symmetric", 4, 2, 9, 2, -2))
sketch3.addConstraint(Sketcher.Constraint("Symmetric", 3, 2, 10, 2, -2))
sketch3.addConstraint(Sketcher.Constraint("Symmetric", 2, 2, 11, 2, -2))
sketch3.addConstraint(Sketcher.Constraint("Perpendicular", 0, 2))
sketch3.addConstraint(Sketcher.Constraint("Perpendicular", 2, 4))
sketch3.addConstraint(Sketcher.Constraint("Perpendicular", 4, 6))
sketch3.addConstraint(Sketcher.Constraint("Perpendicular", 6, 8))
sketch3.addConstraint(Sketcher.Constraint("Perpendicular", 3, 9))
sketch3.addConstraint(Sketcher.Constraint("Perpendicular", 8, 10))
sketch3.addConstraint(Sketcher.Constraint("Perpendicular", 10, 12))
sketch3.addConstraint(Sketcher.Constraint("Perpendicular", 12, 14))
sketch3.addConstraint(Sketcher.Constraint("Perpendicular", 16, 18))
sketch3.addConstraint(Sketcher.Constraint("Perpendicular", 18, 20))
sketch3.addConstraint(Sketcher.Constraint("Equal", 3, 4))
sketch3.addConstraint(Sketcher.Constraint("Equal", 4, 5))
sketch3.addConstraint(Sketcher.Constraint("Equal", 2, 6))
sketch3.addConstraint(Sketcher.Constraint("Radius", 1, 32.5))
sketch3.addConstraint(Sketcher.Constraint("Angle", 3, Q("-75 deg")))
sketch3.addConstraint(Sketcher.Constraint("Distance", 3, 8.0))
sketch3.addConstraint(Sketcher.Constraint("Distance", 0, 18.5))
pad3 = doc.addObject("PartDesign::Pad", "Pad002")
body.addObject(pad3)
pad3.Profile = sketch3
pad3.Length = 4
pad3.Reversed = True

doc.recompute()
